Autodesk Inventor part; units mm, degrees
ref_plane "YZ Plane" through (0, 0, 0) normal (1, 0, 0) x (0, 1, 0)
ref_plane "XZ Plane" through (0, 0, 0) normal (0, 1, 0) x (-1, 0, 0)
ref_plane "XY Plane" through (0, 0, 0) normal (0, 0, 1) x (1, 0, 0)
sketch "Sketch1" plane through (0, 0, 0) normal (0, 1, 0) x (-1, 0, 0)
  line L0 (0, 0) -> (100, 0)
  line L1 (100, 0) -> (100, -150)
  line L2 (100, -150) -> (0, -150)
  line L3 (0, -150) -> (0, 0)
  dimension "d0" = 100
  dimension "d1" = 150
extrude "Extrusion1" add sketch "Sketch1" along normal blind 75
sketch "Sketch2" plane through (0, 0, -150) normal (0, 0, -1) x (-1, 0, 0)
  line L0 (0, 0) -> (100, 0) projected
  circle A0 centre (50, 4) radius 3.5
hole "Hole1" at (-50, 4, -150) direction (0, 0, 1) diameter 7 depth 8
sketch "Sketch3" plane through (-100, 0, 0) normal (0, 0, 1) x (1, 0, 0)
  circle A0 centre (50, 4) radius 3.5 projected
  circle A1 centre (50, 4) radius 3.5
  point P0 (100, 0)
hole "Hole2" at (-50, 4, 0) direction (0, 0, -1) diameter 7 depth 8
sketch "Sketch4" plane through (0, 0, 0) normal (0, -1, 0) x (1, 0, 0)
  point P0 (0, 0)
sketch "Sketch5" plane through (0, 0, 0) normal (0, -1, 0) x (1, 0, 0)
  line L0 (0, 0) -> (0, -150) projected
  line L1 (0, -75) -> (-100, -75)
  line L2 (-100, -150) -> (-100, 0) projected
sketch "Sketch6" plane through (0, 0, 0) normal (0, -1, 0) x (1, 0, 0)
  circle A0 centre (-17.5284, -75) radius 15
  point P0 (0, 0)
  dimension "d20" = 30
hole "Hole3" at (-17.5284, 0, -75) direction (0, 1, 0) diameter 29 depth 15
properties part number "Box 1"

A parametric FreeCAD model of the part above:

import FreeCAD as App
import Part
import Sketcher
Q = App.Units.Quantity

doc = App.newDocument("Part")
body = doc.addObject("PartDesign::Body", "Body")

# Sketch on XZ plane
sketch1 = doc.addObject("Sketcher::SketchObject", "Sketch")
body.addObject(sketch1)
sketch1.AttachmentSupport = (doc.XZ_Plane, [""])
sketch1.MapMode = "FlatFace"
sketch1.addGeometry([
    Part.LineSegment(App.Vector(-100, 0, 0), App.Vector(0, 0, 0)),
    Part.LineSegment(App.Vector(0, 0, 0), App.Vector(0, -150, 0)),
    Part.LineSegment(App.Vector(0, -150, 0), App.Vector(-100, -150, 0)),
    Part.LineSegment(App.Vector(-100, -150, 0), App.Vector(-100, 0, 0)),
], False)
sketch1.addConstraint([
    Sketcher.Constraint("Coincident", 0, 2, 1, 1),
    Sketcher.Constraint("Coincident", 1, 2, 2, 1),
    Sketcher.Constraint("Coincident", 2, 2, 3, 1),
    Sketcher.Constraint("Coincident", 3, 2, 0, 1),
    Sketcher.Constraint("Horizontal", 0),
    Sketcher.Constraint("Vertical", 1),
    Sketcher.Constraint("Horizontal", 2),
    Sketcher.Constraint("Vertical", 3),
    Sketcher.Constraint("Coincident", 0, 2, -1, 1),
    Sketcher.Constraint("DistanceX", 0, 1, 0, 2, Q("100 mm")),
    Sketcher.Constraint("DistanceY", 1, 2, 1, 1, Q("150 mm")),
])
pad1 = doc.addObject("PartDesign::Pad", "Pad")
body.addObject(pad1)
pad1.Profile = sketch1
pad1.Length = 75
pad1.Reversed = True

# Sketch on XY plane
sketch2 = doc.addObject("Sketcher::SketchObject", "Sketch001")
body.addObject(sketch2)
sketch2.AttachmentSupport = (doc.XY_Plane, [""])
sketch2.MapMode = "FlatFace"
sketch2.AttachmentOffset = App.Placement(App.Vector(0, 0, -150), App.Rotation())
sketch2.addGeometry(Part.Circle(App.Vector(-50, 4, 0), App.Vector(0, 0, 1), 3.5), False)
sketch2.addConstraint([
    Sketcher.Constraint("Diameter", 0, Q("7 mm")),
    Sketcher.Constraint("DistanceX", 0, 3, -1, 1, Q("50 mm")),
    Sketcher.Constraint("DistanceY", -1, 1, 0, 3, Q("4 mm")),
])
doc.recompute()
hole = doc.addObject("PartDesign::Hole", "Hole")
body.addObject(hole)
hole.Profile = sketch2
hole.ThreadType = "None"
hole.Diameter = 7
hole.DepthType = "Dimension"
hole.Depth = 8
hole.DrillPoint = "Flat"
hole.Reversed = True

# Sketch on XY plane
sketch3 = doc.addObject("Sketcher::SketchObject", "Sketch002")
body.addObject(sketch3)
sketch3.AttachmentSupport = (doc.XY_Plane, [""])
sketch3.MapMode = "FlatFace"
sketch3.addGeometry(Part.Circle(App.Vector(-50, 4, 0), App.Vector(0, 0, 1), 3.5), False)
sketch3.addConstraint([
    Sketcher.Constraint("Diameter", 0, Q("7 mm")),
    Sketcher.Constraint("DistanceX", 0, 3, -1, 1, Q("50 mm")),
    Sketcher.Constraint("DistanceY", -1, 1, 0, 3, Q("4 mm")),
])
doc.recompute()
hole2 = doc.addObject("PartDesign::Hole", "Hole001")
body.addObject(hole2)
hole2.Profile = sketch3
hole2.ThreadType = "None"
hole2.Diameter = 7
hole2.DepthType = "Dimension"
hole2.Depth = 8
hole2.DrillPoint = "Flat"

# Sketch on XZ plane
sketch4 = doc.addObject("Sketcher::SketchObject", "Sketch003")
body.addObject(sketch4)
sketch4.AttachmentSupport = (doc.XZ_Plane, [""])
sketch4.MapMode = "FlatFace"
sketch4.addGeometry(Part.Circle(App.Vector(-18, -75, 0), App.Vector(0, 0, 1), 14), False)
sketch4.addConstraint([
    Sketcher.Constraint("Diameter", 0, Q("29 mm")),
    Sketcher.Constraint("DistanceY", 0, 3, -1, 1, Q("75 mm")),
    Sketcher.Constraint("DistanceX", 0, 3, -1, 1, Q("17.5284 mm")),
])
doc.recompute()
hole3 = doc.addObject("PartDesign::Hole", "Hole002")
body.addObject(hole3)
hole3.Profile = sketch4
hole3.ThreadType = "None"
hole3.Diameter = 29
hole3.DepthType = "Dimension"
hole3.Depth = 15
hole3.DrillPoint = "Flat"

doc.recompute()
